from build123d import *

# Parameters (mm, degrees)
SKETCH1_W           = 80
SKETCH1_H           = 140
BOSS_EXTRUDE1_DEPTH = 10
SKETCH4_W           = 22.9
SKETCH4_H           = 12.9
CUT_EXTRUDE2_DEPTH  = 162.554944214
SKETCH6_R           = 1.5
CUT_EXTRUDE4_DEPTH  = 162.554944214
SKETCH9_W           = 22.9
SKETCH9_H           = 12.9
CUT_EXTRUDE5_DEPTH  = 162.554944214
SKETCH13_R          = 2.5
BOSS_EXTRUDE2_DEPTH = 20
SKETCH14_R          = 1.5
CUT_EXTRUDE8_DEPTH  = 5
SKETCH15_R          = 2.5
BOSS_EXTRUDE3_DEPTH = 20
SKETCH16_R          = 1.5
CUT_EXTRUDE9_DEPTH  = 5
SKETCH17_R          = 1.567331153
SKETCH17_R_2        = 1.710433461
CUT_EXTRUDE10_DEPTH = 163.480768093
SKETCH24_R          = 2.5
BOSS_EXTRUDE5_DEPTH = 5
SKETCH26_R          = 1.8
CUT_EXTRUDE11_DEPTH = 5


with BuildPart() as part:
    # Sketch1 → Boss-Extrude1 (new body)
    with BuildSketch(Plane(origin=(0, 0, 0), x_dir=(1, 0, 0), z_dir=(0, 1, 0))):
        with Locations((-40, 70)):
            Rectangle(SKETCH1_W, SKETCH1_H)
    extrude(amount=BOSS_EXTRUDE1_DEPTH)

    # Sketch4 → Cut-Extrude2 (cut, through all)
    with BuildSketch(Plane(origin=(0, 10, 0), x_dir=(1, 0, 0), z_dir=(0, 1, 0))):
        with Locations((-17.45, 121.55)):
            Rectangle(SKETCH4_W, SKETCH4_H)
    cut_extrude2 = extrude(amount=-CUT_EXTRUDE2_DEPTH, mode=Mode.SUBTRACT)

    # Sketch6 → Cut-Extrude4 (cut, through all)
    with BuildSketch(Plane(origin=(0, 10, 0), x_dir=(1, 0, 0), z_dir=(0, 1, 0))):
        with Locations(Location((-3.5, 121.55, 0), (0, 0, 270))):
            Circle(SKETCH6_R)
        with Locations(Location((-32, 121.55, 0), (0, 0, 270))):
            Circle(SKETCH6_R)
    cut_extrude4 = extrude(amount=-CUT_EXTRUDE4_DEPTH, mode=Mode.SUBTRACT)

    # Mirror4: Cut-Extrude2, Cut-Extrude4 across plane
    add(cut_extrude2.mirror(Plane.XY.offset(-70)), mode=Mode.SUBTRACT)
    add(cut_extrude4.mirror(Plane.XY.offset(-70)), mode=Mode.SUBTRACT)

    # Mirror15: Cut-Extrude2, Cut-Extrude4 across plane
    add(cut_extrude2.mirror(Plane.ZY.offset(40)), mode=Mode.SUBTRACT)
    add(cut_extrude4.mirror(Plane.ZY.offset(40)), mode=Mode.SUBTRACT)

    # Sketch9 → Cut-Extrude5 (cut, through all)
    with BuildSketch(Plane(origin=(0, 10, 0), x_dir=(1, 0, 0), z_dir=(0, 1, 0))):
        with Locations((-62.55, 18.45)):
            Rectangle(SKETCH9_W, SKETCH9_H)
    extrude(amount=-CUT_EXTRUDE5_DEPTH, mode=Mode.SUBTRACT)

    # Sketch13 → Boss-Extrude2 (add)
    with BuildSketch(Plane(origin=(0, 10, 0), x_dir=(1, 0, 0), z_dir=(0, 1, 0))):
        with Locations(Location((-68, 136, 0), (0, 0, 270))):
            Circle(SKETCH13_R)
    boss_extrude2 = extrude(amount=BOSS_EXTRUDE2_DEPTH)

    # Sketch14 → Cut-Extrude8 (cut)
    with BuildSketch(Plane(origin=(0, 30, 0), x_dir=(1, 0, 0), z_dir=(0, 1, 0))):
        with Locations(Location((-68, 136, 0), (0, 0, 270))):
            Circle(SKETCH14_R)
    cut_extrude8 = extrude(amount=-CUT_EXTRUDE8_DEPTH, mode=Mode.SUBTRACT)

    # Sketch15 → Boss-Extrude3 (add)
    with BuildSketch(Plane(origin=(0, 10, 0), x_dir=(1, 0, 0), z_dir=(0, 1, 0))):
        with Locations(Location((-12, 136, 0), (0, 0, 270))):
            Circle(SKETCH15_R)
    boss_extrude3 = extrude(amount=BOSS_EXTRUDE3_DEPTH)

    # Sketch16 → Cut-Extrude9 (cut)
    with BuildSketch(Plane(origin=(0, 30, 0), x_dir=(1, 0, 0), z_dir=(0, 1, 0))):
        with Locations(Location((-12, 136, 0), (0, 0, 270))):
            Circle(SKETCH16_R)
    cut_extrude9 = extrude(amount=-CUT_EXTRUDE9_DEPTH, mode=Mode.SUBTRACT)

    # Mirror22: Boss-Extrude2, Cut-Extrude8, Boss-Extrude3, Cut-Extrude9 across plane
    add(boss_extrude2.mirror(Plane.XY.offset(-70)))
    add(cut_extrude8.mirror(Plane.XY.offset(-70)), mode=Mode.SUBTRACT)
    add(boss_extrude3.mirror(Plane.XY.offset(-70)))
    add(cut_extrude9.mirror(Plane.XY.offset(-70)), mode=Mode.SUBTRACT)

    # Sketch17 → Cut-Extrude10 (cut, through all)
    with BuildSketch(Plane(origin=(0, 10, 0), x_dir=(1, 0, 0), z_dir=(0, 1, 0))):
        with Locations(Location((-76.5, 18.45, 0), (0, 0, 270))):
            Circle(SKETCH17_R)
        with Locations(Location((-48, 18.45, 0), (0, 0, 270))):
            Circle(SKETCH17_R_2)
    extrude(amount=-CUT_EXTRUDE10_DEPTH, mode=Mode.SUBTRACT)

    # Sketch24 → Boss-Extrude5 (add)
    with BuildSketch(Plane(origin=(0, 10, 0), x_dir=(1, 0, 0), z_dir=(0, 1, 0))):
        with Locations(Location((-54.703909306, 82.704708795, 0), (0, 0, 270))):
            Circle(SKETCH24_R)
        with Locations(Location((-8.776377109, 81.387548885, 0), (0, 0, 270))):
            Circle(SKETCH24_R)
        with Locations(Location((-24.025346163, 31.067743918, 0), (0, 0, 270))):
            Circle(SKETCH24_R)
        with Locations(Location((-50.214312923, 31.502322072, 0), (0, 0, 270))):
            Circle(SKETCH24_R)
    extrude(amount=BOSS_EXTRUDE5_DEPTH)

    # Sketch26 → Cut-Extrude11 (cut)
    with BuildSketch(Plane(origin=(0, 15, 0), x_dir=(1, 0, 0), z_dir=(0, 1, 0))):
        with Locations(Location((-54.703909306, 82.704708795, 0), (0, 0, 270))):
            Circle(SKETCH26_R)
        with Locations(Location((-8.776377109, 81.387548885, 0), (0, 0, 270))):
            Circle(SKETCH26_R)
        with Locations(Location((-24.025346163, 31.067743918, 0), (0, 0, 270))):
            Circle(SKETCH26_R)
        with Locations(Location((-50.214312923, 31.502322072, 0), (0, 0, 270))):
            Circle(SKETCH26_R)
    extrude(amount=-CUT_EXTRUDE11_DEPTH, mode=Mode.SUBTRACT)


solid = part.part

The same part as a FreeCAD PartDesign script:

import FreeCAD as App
import Part
import Sketcher
from FreeCAD import Vector
Q = App.Units.Quantity


def add_polygon(sketch, points):
    """Adds a closed chain of lines whose ends are joined by coincident constraints."""
    first, n = sketch.GeometryCount, len(points)
    for a, b in zip(points, points[1:] + points[:1]):
        sketch.addGeometry(Part.LineSegment(App.Vector(*a, 0), App.Vector(*b, 0)), False)
    for i in range(n):
        sketch.addConstraint(Sketcher.Constraint("Coincident", first + i, 2, first + (i + 1) % n, 1))

doc = App.newDocument("Part")
body = doc.addObject("PartDesign::Body", "Body")

# Sketch on XZ plane
sketch1 = doc.addObject("Sketcher::SketchObject", "Sketch")
body.addObject(sketch1)
sketch1.AttachmentSupport = (doc.XZ_Plane, [""])
sketch1.MapMode = "FlatFace"
add_polygon(sketch1, [(-80, -140), (-80, 0), (0, 0), (0, -140)])  # lines 0-3
sketch1.addConstraint([
    Sketcher.Constraint("Vertical", 0),
    Sketcher.Constraint("Horizontal", 1),
    Sketcher.Constraint("Vertical", 2),
    Sketcher.Constraint("Horizontal", 3),
    Sketcher.Constraint("Coincident", 1, 2, -1, 1),
    Sketcher.Constraint("DistanceX", 1, 1, 1, 2, Q("80 mm")),
    Sketcher.Constraint("DistanceY", 0, 1, 0, 2, Q("140 mm")),
])
pad1 = doc.addObject("PartDesign::Pad", "Pad")
body.addObject(pad1)
pad1.Profile = sketch1
pad1.Length = 10
pad1.Reversed = True

# Sketch on XZ plane
sketch2 = doc.addObject("Sketcher::SketchObject", "Sketch001")
body.addObject(sketch2)
sketch2.AttachmentSupport = (doc.XZ_Plane, [""])
sketch2.MapMode = "FlatFace"
sketch2.AttachmentOffset = App.Placement(Vector(0, 0, -10), App.Rotation())
add_polygon(sketch2, [(-28.9, -128), (-28.9, -115.1), (-6, -115.1), (-6, -128)])  # lines 0-3
sketch2.addConstraint([
    Sketcher.Constraint("Vertical", 0),
    Sketcher.Constraint("Horizontal", 1),
    Sketcher.Constraint("Vertical", 2),
    Sketcher.Constraint("Horizontal", 3),
    Sketcher.Constraint("DistanceX", 1, 1, 1, 2, Q("22.9 mm")),
    Sketcher.Constraint("DistanceY", 0, 1, 0, 2, Q("12.9 mm")),
    Sketcher.Constraint("DistanceX", 1, 2, -1, 1, Q("6 mm")),
    Sketcher.Constraint("DistanceY", 2, 2, -1, 1, Q("128 mm")),
])
pocket1 = doc.addObject("PartDesign::Pocket", "Pocket")
body.addObject(pocket1)
pocket1.Profile = sketch2
pocket1.Type = "ThroughAll"
pocket1.Reversed = True

# Sketch on XZ plane
sketch3 = doc.addObject("Sketcher::SketchObject", "Sketch002")
body.addObject(sketch3)
sketch3.AttachmentSupport = (doc.XZ_Plane, [""])
sketch3.MapMode = "FlatFace"
sketch3.AttachmentOffset = App.Placement(Vector(0, 0, -10), App.Rotation())
sketch3.addGeometry([
    Part.Circle(Vector(-3.5, -121.55, 0), Vector(0, 0, 1), 1.5),
    Part.Circle(Vector(-32, -121.55, 0), Vector(0, 0, 1), 1.5),
], False)
sketch3.addConstraint([
    Sketcher.Constraint("Equal", 0, 1),
    Sketcher.Constraint("Horizontal", 0, 3, 1, 3),
    Sketcher.Constraint("Diameter", 0, Q("3 mm")),
    Sketcher.Constraint("DistanceX", 1, 3, -1, 1, Q("32 mm")),
    Sketcher.Constraint("DistanceX", 0, 3, -1, 1, Q("3.5 mm")),
    Sketcher.Constraint("DistanceY", 0, 3, -1, 1, Q("121.55 mm")),
])
pocket2 = doc.addObject("PartDesign::Pocket", "Pocket001")
body.addObject(pocket2)
pocket2.Profile = sketch3
pocket2.Type = "ThroughAll"
pocket2.Reversed = True
doc.recompute()

datumplane = doc.addObject("PartDesign::Plane", "DatumPlane")
body.addObject(datumplane)
datumplane.AttachmentSupport = (doc.XY_Plane, [""])
datumplane.MapMode = "FlatFace"
datumplane.AttachmentOffset = App.Placement(Vector(0, 0, -70), App.Rotation())
mirrored = doc.addObject("PartDesign::Mirrored", "Mirrored")
body.addObject(mirrored)
mirrored.Originals = [pocket1, pocket2]
mirrored.MirrorPlane = (datumplane, [""])
body.Tip = mirrored
doc.recompute()

datumplane2 = doc.addObject("PartDesign::Plane", "DatumPlane001")
body.addObject(datumplane2)
datumplane2.AttachmentSupport = (doc.YZ_Plane, [""])
datumplane2.MapMode = "FlatFace"
datumplane2.AttachmentOffset = App.Placement(Vector(0, 0, -40), App.Rotation())
mirrored2 = doc.addObject("PartDesign::Mirrored", "Mirrored001")
body.addObject(mirrored2)
mirrored2.Originals = [pocket1, pocket2]
mirrored2.MirrorPlane = (datumplane2, [""])
body.Tip = mirrored2

# Sketch on XZ plane
sketch4 = doc.addObject("Sketcher::SketchObject", "Sketch003")
body.addObject(sketch4)
sketch4.AttachmentSupport = (doc.XZ_Plane, [""])
sketch4.MapMode = "FlatFace"
sketch4.AttachmentOffset = App.Placement(Vector(0, 0, -10), App.Rotation())
add_polygon(sketch4, [(-74, -24.9), (-74, -12), (-51.1, -12), (-51.1, -24.9)])  # lines 0-3
sketch4.addConstraint([
    Sketcher.Constraint("Vertical", 0),
    Sketcher.Constraint("Horizontal", 1),
    Sketcher.Constraint("Vertical", 2),
    Sketcher.Constraint("Horizontal", 3),
    Sketcher.Constraint("DistanceX", 1, 1, 1, 2, Q("22.9 mm")),
    Sketcher.Constraint("DistanceY", 0, 1, 0, 2, Q("12.9 mm")),
    Sketcher.Constraint("DistanceX", 0, 2, -1, 1, Q("74 mm")),
    Sketcher.Constraint("DistanceY", 0, 2, -1, 1, Q("12 mm")),
])
pocket3 = doc.addObject("PartDesign::Pocket", "Pocket002")
body.addObject(pocket3)
pocket3.Profile = sketch4
pocket3.Type = "ThroughAll"
pocket3.Reversed = True

# Sketch on XZ plane
sketch5 = doc.addObject("Sketcher::SketchObject", "Sketch004")
body.addObject(sketch5)
sketch5.AttachmentSupport = (doc.XZ_Plane, [""])
sketch5.MapMode = "FlatFace"
sketch5.AttachmentOffset = App.Placement(Vector(0, 0, -10), App.Rotation())
sketch5.addGeometry(Part.Circle(Vector(-68, -136, 0), Vector(0, 0, 1), 2.5), False)
sketch5.addConstraint([
    Sketcher.Constraint("Diameter", 0, Q("5 mm")),
    Sketcher.Constraint("DistanceX", 0, 3, -1, 1, Q("68 mm")),
    Sketcher.Constraint("DistanceY", 0, 3, -1, 1, Q("136 mm")),
])
pad2 = doc.addObject("PartDesign::Pad", "Pad001")
body.addObject(pad2)
pad2.Profile = sketch5
pad2.Length = 20
pad2.Reversed = True

# Sketch on XZ plane
sketch6 = doc.addObject("Sketcher::SketchObject", "Sketch005")
body.addObject(sketch6)
sketch6.AttachmentSupport = (doc.XZ_Plane, [""])
sketch6.MapMode = "FlatFace"
sketch6.AttachmentOffset = App.Placement(Vector(0, 0, -30), App.Rotation())
sketch6.addGeometry(Part.Circle(Vector(-68, -136, 0), Vector(0, 0, 1), 1.5), False)
sketch6.addConstraint([
    Sketcher.Constraint("Diameter", 0, Q("3 mm")),
    Sketcher.Constraint("DistanceX", 0, 3, -1, 1, Q("68 mm")),
    Sketcher.Constraint("DistanceY", 0, 3, -1, 1, Q("136 mm")),
])
pocket4 = doc.addObject("PartDesign::Pocket", "Pocket003")
body.addObject(pocket4)
pocket4.Profile = sketch6
pocket4.Length = 5
pocket4.Reversed = True

# Sketch on XZ plane
sketch7 = doc.addObject("Sketcher::SketchObject", "Sketch006")
body.addObject(sketch7)
sketch7.AttachmentSupport = (doc.XZ_Plane, [""])
sketch7.MapMode = "FlatFace"
sketch7.AttachmentOffset = App.Placement(Vector(0, 0, -10), App.Rotation())
sketch7.addGeometry(Part.Circle(Vector(-12, -136, 0), Vector(0, 0, 1), 2.5), False)
sketch7.addConstraint([
    Sketcher.Constraint("Diameter", 0, Q("5 mm")),
    Sketcher.Constraint("DistanceX", 0, 3, -1, 1, Q("12 mm")),
    Sketcher.Constraint("DistanceY", 0, 3, -1, 1, Q("136 mm")),
])
pad3 = doc.addObject("PartDesign::Pad", "Pad002")
body.addObject(pad3)
pad3.Profile = sketch7
pad3.Length = 20
pad3.Reversed = True

# Sketch on XZ plane
sketch8 = doc.addObject("Sketcher::SketchObject", "Sketch007")
body.addObject(sketch8)
sketch8.AttachmentSupport = (doc.XZ_Plane, [""])
sketch8.MapMode = "FlatFace"
sketch8.AttachmentOffset = App.Placement(Vector(0, 0, -30), App.Rotation())
sketch8.addGeometry(Part.Circle(Vector(-12, -136, 0), Vector(0, 0, 1), 1.5), False)
sketch8.addConstraint([
    Sketcher.Constraint("Diameter", 0, Q("3 mm")),
    Sketcher.Constraint("DistanceX", 0, 3, -1, 1, Q("12 mm")),
    Sketcher.Constraint("DistanceY", 0, 3, -1, 1, Q("136 mm")),
])
pocket5 = doc.addObject("PartDesign::Pocket", "Pocket004")
body.addObject(pocket5)
pocket5.Profile = sketch8
pocket5.Length = 5
pocket5.Reversed = True
doc.recompute()

datumplane3 = doc.addObject("PartDesign::Plane", "DatumPlane002")
body.addObject(datumplane3)
datumplane3.AttachmentSupport = (doc.XY_Plane, [""])
datumplane3.MapMode = "FlatFace"
datumplane3.AttachmentOffset = App.Placement(Vector(0, 0, -70), App.Rotation())
mirrored3 = doc.addObject("PartDesign::Mirrored", "Mirrored002")
body.addObject(mirrored3)
mirrored3.Originals = [pad2, pocket4, pad3, pocket5]
mirrored3.MirrorPlane = (datumplane3, [""])
body.Tip = mirrored3

# Sketch on XZ plane
sketch9 = doc.addObject("Sketcher::SketchObject", "Sketch008")
body.addObject(sketch9)
sketch9.AttachmentSupport = (doc.XZ_Plane, [""])
sketch9.MapMode = "FlatFace"
sketch9.AttachmentOffset = App.Placement(Vector(0, 0, -10), App.Rotation())
sketch9.addGeometry([
    Part.Circle(Vector(-76.5, -18.45, 0), Vector(0, 0, 1), 1.567331),
    Part.Circle(Vector(-48, -18.45, 0), Vector(0, 0, 1), 1.710433),
], False)
sketch9.addConstraint([
    Sketcher.Constraint("Horizontal", 0, 3, 1, 3),
    Sketcher.Constraint("DistanceX", 1, 3, -1, 1, Q("48 mm")),
    Sketcher.Constraint("DistanceX", 0, 3, -1, 1, Q("76.5 mm")),
    Sketcher.Constraint("DistanceY", 0, 3, -1, 1, Q("18.45 mm")),
    Sketcher.Constraint("Diameter", 0, Q("3.134662 mm")),
    Sketcher.Constraint("Diameter", 1, Q("3.420867 mm")),
])
pocket6 = doc.addObject("PartDesign::Pocket", "Pocket005")
body.addObject(pocket6)
pocket6.Profile = sketch9
pocket6.Type = "ThroughAll"
pocket6.Reversed = True

# Sketch on XZ plane
sketch10 = doc.addObject("Sketcher::SketchObject", "Sketch009")
body.addObject(sketch10)
sketch10.AttachmentSupport = (doc.XZ_Plane, [""])
sketch10.MapMode = "FlatFace"
sketch10.AttachmentOffset = App.Placement(Vector(0, 0, -10), App.Rotation())
sketch10.addGeometry([
    Part.Circle(Vector(-54.703909, -82.704709, 0), Vector(0, 0, 1), 2.5),
    Part.Circle(Vector(-8.776377, -81.387549, 0), Vector(0, 0, 1), 2.5),
    Part.Circle(Vector(-24.025346, -31.067744, 0), Vector(0, 0, 1), 2.5),
    Part.Circle(Vector(-50.214313, -31.502322, 0), Vector(0, 0, 1), 2.5),
], False)
sketch10.addConstraint([
    Sketcher.Constraint("Equal", 0, 1),
    Sketcher.Constraint("Equal", 1, 2),
    Sketcher.Constraint("Equal", 2, 3),
    Sketcher.Constraint("Diameter", 0, Q("5 mm")),
    Sketcher.Constraint("DistanceX", 0, 3, -1, 1, Q("54.703909 mm")),
    Sketcher.Constraint("DistanceY", 0, 3, -1, 1, Q("82.704709 mm")),
    Sketcher.Constraint("DistanceY", 1, 3, -1, 1, Q("81.387549 mm")),
    Sketcher.Constraint("DistanceX", 2, 3, 1, 3, Q("15.248969 mm")),
    Sketcher.Constraint("DistanceY", 3, 3, 2, 3, Q("0.434578 mm")),
    Sketcher.Constraint("DistanceX", 1, 3, -1, 1, Q("8.776377 mm")),
    Sketcher.Constraint("DistanceY", 2, 3, -1, 1, Q("31.067744 mm")),
    Sketcher.Constraint("DistanceX", 3, 3, -1, 1, Q("50.214313 mm")),
])
pad4 = doc.addObject("PartDesign::Pad", "Pad003")
body.addObject(pad4)
pad4.Profile = sketch10
pad4.Length = 5
pad4.Reversed = True

# Sketch on XZ plane
sketch11 = doc.addObject("Sketcher::SketchObject", "Sketch010")
body.addObject(sketch11)
sketch11.AttachmentSupport = (doc.XZ_Plane, [""])
sketch11.MapMode = "FlatFace"
sketch11.AttachmentOffset = App.Placement(Vector(0, 0, -15), App.Rotation())
sketch11.addGeometry([
    Part.Circle(Vector(-54.703909, -82.704709, 0), Vector(0, 0, 1), 1.8),
    Part.Circle(Vector(-8.776377, -81.387549, 0), Vector(0, 0, 1), 1.8),
    Part.Circle(Vector(-24.025346, -31.067744, 0), Vector(0, 0, 1), 1.8),
    Part.Circle(Vector(-50.214313, -31.502322, 0), Vector(0, 0, 1), 1.8),
], False)
sketch11.addConstraint([
    Sketcher.Constraint("Equal", 0, 1),
    Sketcher.Constraint("Equal", 1, 2),
    Sketcher.Constraint("Equal", 2, 3),
    Sketcher.Constraint("Diameter", 0, Q("3.6 mm")),
    Sketcher.Constraint("DistanceX", 0, 3, -1, 1, Q("54.703909 mm")),
    Sketcher.Constraint("DistanceY", 0, 3, -1, 1, Q("82.704709 mm")),
    Sketcher.Constraint("DistanceY", 1, 3, -1, 1, Q("81.387549 mm")),
    Sketcher.Constraint("DistanceX", 2, 3, 1, 3, Q("15.248969 mm")),
    Sketcher.Constraint("DistanceY", 3, 3, 2, 3, Q("0.434578 mm")),
    Sketcher.Constraint("DistanceX", 1, 3, -1, 1, Q("8.776377 mm")),
    Sketcher.Constraint("DistanceY", 2, 3, -1, 1, Q("31.067744 mm")),
    Sketcher.Constraint("DistanceX", 3, 3, -1, 1, Q("50.214313 mm")),
])
pocket7 = doc.addObject("PartDesign::Pocket", "Pocket006")
body.addObject(pocket7)
pocket7.Profile = sketch11
pocket7.Length = 5
pocket7.Reversed = True

doc.recompute()
